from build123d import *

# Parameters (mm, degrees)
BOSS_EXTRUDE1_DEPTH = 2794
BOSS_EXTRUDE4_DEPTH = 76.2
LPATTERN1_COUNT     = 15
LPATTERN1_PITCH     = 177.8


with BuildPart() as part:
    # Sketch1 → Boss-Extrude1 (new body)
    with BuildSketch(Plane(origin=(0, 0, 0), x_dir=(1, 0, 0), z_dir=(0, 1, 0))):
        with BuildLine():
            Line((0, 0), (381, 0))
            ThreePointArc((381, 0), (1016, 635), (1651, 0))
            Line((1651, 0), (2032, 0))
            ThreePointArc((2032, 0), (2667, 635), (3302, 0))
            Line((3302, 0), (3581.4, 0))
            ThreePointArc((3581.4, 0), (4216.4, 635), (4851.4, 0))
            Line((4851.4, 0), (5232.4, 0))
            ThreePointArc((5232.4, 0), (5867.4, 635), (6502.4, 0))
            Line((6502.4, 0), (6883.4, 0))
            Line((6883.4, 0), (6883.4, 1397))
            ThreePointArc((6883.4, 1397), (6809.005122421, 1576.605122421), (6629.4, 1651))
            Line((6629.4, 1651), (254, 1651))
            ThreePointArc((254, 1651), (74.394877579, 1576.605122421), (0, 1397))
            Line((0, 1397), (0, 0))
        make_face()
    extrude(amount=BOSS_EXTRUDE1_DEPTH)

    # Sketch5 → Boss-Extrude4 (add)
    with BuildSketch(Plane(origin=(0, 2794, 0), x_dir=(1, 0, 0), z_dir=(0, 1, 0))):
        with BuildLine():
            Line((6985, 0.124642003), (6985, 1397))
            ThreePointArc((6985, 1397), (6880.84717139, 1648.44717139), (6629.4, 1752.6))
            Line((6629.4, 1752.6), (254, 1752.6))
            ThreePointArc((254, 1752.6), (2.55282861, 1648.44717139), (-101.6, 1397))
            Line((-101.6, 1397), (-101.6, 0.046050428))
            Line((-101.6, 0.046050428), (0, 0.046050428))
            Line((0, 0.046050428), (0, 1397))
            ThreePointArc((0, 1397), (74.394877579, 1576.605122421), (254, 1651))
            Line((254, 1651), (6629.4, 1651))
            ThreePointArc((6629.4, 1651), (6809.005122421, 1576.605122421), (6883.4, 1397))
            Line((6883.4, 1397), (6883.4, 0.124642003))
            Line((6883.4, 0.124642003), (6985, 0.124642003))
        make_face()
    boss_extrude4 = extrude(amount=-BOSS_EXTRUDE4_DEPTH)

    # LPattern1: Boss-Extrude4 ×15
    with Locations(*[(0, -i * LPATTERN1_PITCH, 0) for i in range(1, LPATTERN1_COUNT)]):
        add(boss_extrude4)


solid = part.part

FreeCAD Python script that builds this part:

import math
import FreeCAD as App
import Part
import Sketcher
from FreeCAD import Vector
Q = App.Units.Quantity

doc = App.newDocument("Part")
body = doc.addObject("PartDesign::Body", "Body")

# Sketch on XZ plane
sketch1 = body.newObject("Sketcher::SketchObject", "Sketch")
sketch1.AttachmentSupport = (doc.getObject("XZ_Plane"), [""])
sketch1.MapMode = "FlatFace"
sketch1.addGeometry([
    Part.LineSegment(Vector(0, 0, 0), Vector(381, 0, 0)),  # 0
    Part.ArcOfCircle(Part.Circle(Vector(1016, 0, 0), Vector(0, 0, 1), 635), math.radians(180), math.radians(360)),  # 1
    Part.LineSegment(Vector(1651, 0, 0), Vector(2032, 0, 0)),  # 2
    Part.ArcOfCircle(Part.Circle(Vector(2667, 0, 0), Vector(0, 0, 1), 635), math.radians(180), math.radians(360)),  # 3
    Part.LineSegment(Vector(3302, 0, 0), Vector(3581, 0, 0)),  # 4
    Part.ArcOfCircle(Part.Circle(Vector(4216, 0, 0), Vector(0, 0, 1), 635), math.radians(180), math.radians(360)),  # 5
    Part.LineSegment(Vector(4851, 0, 0), Vector(5232, 0, 0)),  # 6
    Part.ArcOfCircle(Part.Circle(Vector(5867, 0, 0), Vector(0, 0, 1), 635), math.radians(180), math.radians(360)),  # 7
    Part.LineSegment(Vector(6502, 0, 0), Vector(6883, 0, 0)),  # 8
    Part.LineSegment(Vector(6883, 0, 0), Vector(6883, -1397, 0)),  # 9
    Part.ArcOfCircle(Part.Circle(Vector(6629, -1397, 0), Vector(0, 0, 1), 254), math.radians(-90), math.radians(0)),  # 10
    Part.LineSegment(Vector(6629, -1651, 0), Vector(254, -1651, 0)),  # 11
    Part.ArcOfCircle(Part.Circle(Vector(254, -1397, 0), Vector(0, 0, 1), 254), math.radians(-180), math.radians(-90)),  # 12
    Part.LineSegment(Vector(0, -1397, 0), Vector(0, 0, 0)),  # 13
], False)
sketch1.addConstraint([
    Sketcher.Constraint("Coincident", 0, 2, 1, 1),
    Sketcher.Constraint("Coincident", 1, 2, 2, 1),
    Sketcher.Constraint("Coincident", 2, 2, 3, 1),
    Sketcher.Constraint("Coincident", 3, 2, 4, 1),
    Sketcher.Constraint("Coincident", 4, 2, 5, 1),
    Sketcher.Constraint("Coincident", 5, 2, 6, 1),
    Sketcher.Constraint("Coincident", 6, 2, 7, 1),
    Sketcher.Constraint("Coincident", 7, 2, 8, 1),
    Sketcher.Constraint("Coincident", 8, 2, 9, 1),
    Sketcher.Constraint("Tangent", 9, 2, 10, 2),
    Sketcher.Constraint("Tangent", 10, 1, 11, 1),
    Sketcher.Constraint("Tangent", 11, 2, 12, 2),
    Sketcher.Constraint("Tangent", 12, 1, 13, 1),
    Sketcher.Constraint("Coincident", 13, 2, 0, 1),
    Sketcher.Constraint("Horizontal", 0),
    Sketcher.Constraint("Horizontal", 2),
    Sketcher.Constraint("Horizontal", 4),
    Sketcher.Constraint("Horizontal", 6),
    Sketcher.Constraint("Horizontal", 8),
    Sketcher.Constraint("Vertical", 9),
    Sketcher.Constraint("Horizontal", 11),
    Sketcher.Constraint("Vertical", 13),
    Sketcher.Constraint("Coincident", 13, 2, -1, 1),
    Sketcher.Constraint("Equal", 1, 3),
    Sketcher.Constraint("Equal", 3, 5),
    Sketcher.Constraint("Equal", 5, 7),
    Sketcher.Constraint("Equal", 10, 12),
    Sketcher.Constraint("PointOnObject", 1, 3, -1),
    Sketcher.Constraint("PointOnObject", 3, 3, -1),
    Sketcher.Constraint("PointOnObject", 5, 3, -1),
    Sketcher.Constraint("PointOnObject", 7, 3, -1),
    Sketcher.Constraint("PointOnObject", 2, 2, -1),
    Sketcher.Constraint("PointOnObject", 4, 2, -1),
    Sketcher.Constraint("PointOnObject", 6, 2, -1),
    Sketcher.Constraint("PointOnObject", 8, 2, -1),
    Sketcher.Constraint("Equal", 0, 2),
    Sketcher.Constraint("Equal", 2, 6),
    Sketcher.Constraint("Equal", 6, 8),
    Sketcher.Constraint("Radius", 1, Q("25 in")),
    Sketcher.Constraint("Radius", 10, Q("10 in")),
    Sketcher.Constraint("DistanceX", 0, 1, 0, 2, Q("15 in")),
    Sketcher.Constraint("DistanceX", 4, 1, 4, 2, Q("11 in")),
    Sketcher.Constraint("DistanceY", 9, 2, 9, 1, Q("55 in")),
])
pad1 = body.newObject("PartDesign::Pad", "Pad")
pad1.Profile = sketch1
pad1.Length = Q("110 in")
pad1.Reversed = True

# Sketch on XZ plane
sketch2 = body.newObject("Sketcher::SketchObject", "Sketch001")
sketch2.AttachmentSupport = (doc.getObject("XZ_Plane"), [""])
sketch2.MapMode = "FlatFace"
sketch2.AttachmentOffset = App.Placement(Vector(0, 0, -110 * 25.4), App.Rotation())
sketch2.addGeometry([
    Part.LineSegment(Vector(6985, 0, 0), Vector(6985, -1397, 0)),  # 0
    Part.ArcOfCircle(Part.Circle(Vector(6629, -1397, 0), Vector(0, 0, 1), 356), math.radians(-90), math.radians(0)),  # 1
    Part.LineSegment(Vector(6629, -1753, 0), Vector(254, -1753, 0)),  # 2
    Part.ArcOfCircle(Part.Circle(Vector(254, -1397, 0), Vector(0, 0, 1), 356), math.radians(180), math.radians(270)),  # 3
    Part.LineSegment(Vector(-102, -1397, 0), Vector(-102, 0, 0)),  # 4
    Part.LineSegment(Vector(-102, 0, 0), Vector(0, 0, 0)),  # 5
    Part.LineSegment(Vector(0, 0, 0), Vector(0, -1397, 0)),  # 6
    Part.ArcOfCircle(Part.Circle(Vector(254, -1397, 0), Vector(0, 0, 1), 254), math.radians(-180), math.radians(-90)),  # 7
    Part.LineSegment(Vector(254, -1651, 0), Vector(6629, -1651, 0)),  # 8
    Part.ArcOfCircle(Part.Circle(Vector(6629, -1397, 0), Vector(0, 0, 1), 254), math.radians(-90), math.radians(0)),  # 9
    Part.LineSegment(Vector(6883, -1397, 0), Vector(6883, 0, 0)),  # 10
    Part.LineSegment(Vector(6883, 0, 0), Vector(6985, 0, 0)),  # 11
], False)
sketch2.addConstraint([
    Sketcher.Constraint("Tangent", 0, 2, 1, 2),
    Sketcher.Constraint("Tangent", 1, 1, 2, 1),
    Sketcher.Constraint("Tangent", 2, 2, 3, 2),
    Sketcher.Constraint("Tangent", 3, 1, 4, 1),
    Sketcher.Constraint("Coincident", 4, 2, 5, 1),
    Sketcher.Constraint("Coincident", 5, 2, 6, 1),
    Sketcher.Constraint("Tangent", 6, 2, 7, 1),
    Sketcher.Constraint("Tangent", 7, 2, 8, 1),
    Sketcher.Constraint("Tangent", 8, 2, 9, 1),
    Sketcher.Constraint("Tangent", 9, 2, 10, 1),
    Sketcher.Constraint("Coincident", 10, 2, 11, 1),
    Sketcher.Constraint("Coincident", 11, 2, 0, 1),
    Sketcher.Constraint("Vertical", 0),
    Sketcher.Constraint("Horizontal", 2),
    Sketcher.Constraint("Vertical", 4),
    Sketcher.Constraint("Horizontal", 5),
    Sketcher.Constraint("Vertical", 6),
    Sketcher.Constraint("Horizontal", 8),
    Sketcher.Constraint("Vertical", 10),
    Sketcher.Constraint("Horizontal", 11),
    Sketcher.Constraint("Coincident", 7, 3, 3, 3),
    Sketcher.Constraint("Coincident", 9, 3, 1, 3),
    Sketcher.Constraint("Equal", 1, 3),
    Sketcher.Constraint("PointOnObject", 5, 2, -2),
    Sketcher.Constraint("Radius", 1, Q("14 in")),
    Sketcher.Constraint("Radius", 7, Q("10 in")),
    Sketcher.Constraint("DistanceX", 2, 2, 2, 1, Q("251 in")),
    Sketcher.Constraint("DistanceY", 1, 3, -1, 1, Q("55 in")),
    Sketcher.Constraint("DistanceY", 4, 1, 4, 2, Q("1396.95395 mm")),
    Sketcher.Constraint("DistanceY", 0, 2, 0, 1, Q("1396.875358 mm")),
])
pad2 = body.newObject("PartDesign::Pad", "Pad001")
pad2.Profile = sketch2
pad2.Length = Q("3 in")
doc.recompute()

linearpattern = body.newObject("PartDesign::LinearPattern", "LinearPattern")
linearpattern.Originals = [pad2]
linearpattern.Direction = (doc.getObject("Y_Axis"), [""])
linearpattern.Mode = "offset"
linearpattern.Offset = Q("7 in")
linearpattern.Occurrences = 15
linearpattern.Reversed = True
body.Tip = linearpattern

doc.recompute()
